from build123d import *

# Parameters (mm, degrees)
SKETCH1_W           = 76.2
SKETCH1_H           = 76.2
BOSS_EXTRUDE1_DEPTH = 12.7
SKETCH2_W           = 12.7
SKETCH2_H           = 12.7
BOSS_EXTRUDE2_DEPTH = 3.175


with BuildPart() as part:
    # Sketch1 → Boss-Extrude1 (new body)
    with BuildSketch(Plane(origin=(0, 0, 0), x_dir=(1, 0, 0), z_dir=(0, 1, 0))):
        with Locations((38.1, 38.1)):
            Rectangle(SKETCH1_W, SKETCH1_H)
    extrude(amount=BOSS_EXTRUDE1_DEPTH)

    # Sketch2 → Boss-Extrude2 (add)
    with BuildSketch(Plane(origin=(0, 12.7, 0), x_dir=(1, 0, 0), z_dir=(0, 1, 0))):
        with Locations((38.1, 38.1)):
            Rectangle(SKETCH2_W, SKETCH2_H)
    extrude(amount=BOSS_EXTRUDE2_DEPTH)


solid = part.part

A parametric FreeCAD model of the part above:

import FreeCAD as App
import Part
import Sketcher
from FreeCAD import Vector
Q = App.Units.Quantity


def add_polygon(sketch, points):
    """Adds a closed chain of lines whose ends are joined by coincident constraints."""
    first, n = sketch.GeometryCount, len(points)
    for a, b in zip(points, points[1:] + points[:1]):
        sketch.addGeometry(Part.LineSegment(App.Vector(*a, 0), App.Vector(*b, 0)), False)
    for i in range(n):
        sketch.addConstraint(Sketcher.Constraint("Coincident", first + i, 2, first + (i + 1) % n, 1))

doc = App.newDocument("Part")
params = doc.addObject("Spreadsheet::Sheet", "Params")
for row, (alias, value) in enumerate([
    ("sketch1_width", "3 in"),
    ("pad1_length", "0.5 in"),
    ("sketch2_width", "0.5 in"),
    ("pad2_length", "0.125 in"),
], start=1):
    params.set(f"A{row}", alias)
    params.set(f"B{row}", "=" + value)
    params.setAlias(f"B{row}", alias)

body = doc.addObject("PartDesign::Body", "Body")

# Sketch on XZ plane
sketch1 = body.newObject("Sketcher::SketchObject", "Sketch")
sketch1.AttachmentSupport = (doc.getObject("XZ_Plane"), [""])
sketch1.MapMode = "FlatFace"
add_polygon(sketch1, [(0, -76.2), (0, 0), (76.2, 0), (76.2, -76.2)])  # lines 0-3
sketch1.addConstraint([
    Sketcher.Constraint("Vertical", 0),
    Sketcher.Constraint("Horizontal", 1),
    Sketcher.Constraint("Vertical", 2),
    Sketcher.Constraint("Horizontal", 3),
    Sketcher.Constraint("Coincident", 0, 2, -1, 1),
    Sketcher.Constraint("Equal", 3, 0),
    Sketcher.Constraint("DistanceX", 1, 1, 1, 2, Q("3 in")),
])
sketch1.setExpression("Constraints[10]", "Params.sketch1_width")
pad1 = body.newObject("PartDesign::Pad", "Pad")
pad1.Profile = sketch1
pad1.setExpression("Length", "Params.pad1_length")
pad1.Reversed = True

# Sketch on XZ plane
sketch2 = body.newObject("Sketcher::SketchObject", "Sketch001")
sketch2.AttachmentSupport = (doc.getObject("XZ_Plane"), [""])
sketch2.MapMode = "FlatFace"
sketch2.AttachmentOffset = App.Placement(Vector(0, 0, -0.5 * 25.4), App.Rotation())
add_polygon(sketch2, [(31.75, -44.45), (31.75, -31.75), (44.45, -31.75), (44.45, -44.45)])  # lines 0-3
sketch2.addConstraint([
    Sketcher.Constraint("Vertical", 0),
    Sketcher.Constraint("Horizontal", 1),
    Sketcher.Constraint("Vertical", 2),
    Sketcher.Constraint("Horizontal", 3),
    Sketcher.Constraint("Equal", 3, 0),
    Sketcher.Constraint("DistanceX", 1, 1, 1, 2, Q("0.5 in")),
    Sketcher.Constraint("DistanceX", -1, 1, 0, 2, Q("1.25 in")),
    Sketcher.Constraint("DistanceY", 0, 2, -1, 1, Q("1.25 in")),
])
sketch2.setExpression("Constraints[9]", "Params.sketch2_width")
pad2 = body.newObject("PartDesign::Pad", "Pad001")
pad2.Profile = sketch2
pad2.setExpression("Length", "Params.pad2_length")
pad2.Reversed = True

doc.recompute()
